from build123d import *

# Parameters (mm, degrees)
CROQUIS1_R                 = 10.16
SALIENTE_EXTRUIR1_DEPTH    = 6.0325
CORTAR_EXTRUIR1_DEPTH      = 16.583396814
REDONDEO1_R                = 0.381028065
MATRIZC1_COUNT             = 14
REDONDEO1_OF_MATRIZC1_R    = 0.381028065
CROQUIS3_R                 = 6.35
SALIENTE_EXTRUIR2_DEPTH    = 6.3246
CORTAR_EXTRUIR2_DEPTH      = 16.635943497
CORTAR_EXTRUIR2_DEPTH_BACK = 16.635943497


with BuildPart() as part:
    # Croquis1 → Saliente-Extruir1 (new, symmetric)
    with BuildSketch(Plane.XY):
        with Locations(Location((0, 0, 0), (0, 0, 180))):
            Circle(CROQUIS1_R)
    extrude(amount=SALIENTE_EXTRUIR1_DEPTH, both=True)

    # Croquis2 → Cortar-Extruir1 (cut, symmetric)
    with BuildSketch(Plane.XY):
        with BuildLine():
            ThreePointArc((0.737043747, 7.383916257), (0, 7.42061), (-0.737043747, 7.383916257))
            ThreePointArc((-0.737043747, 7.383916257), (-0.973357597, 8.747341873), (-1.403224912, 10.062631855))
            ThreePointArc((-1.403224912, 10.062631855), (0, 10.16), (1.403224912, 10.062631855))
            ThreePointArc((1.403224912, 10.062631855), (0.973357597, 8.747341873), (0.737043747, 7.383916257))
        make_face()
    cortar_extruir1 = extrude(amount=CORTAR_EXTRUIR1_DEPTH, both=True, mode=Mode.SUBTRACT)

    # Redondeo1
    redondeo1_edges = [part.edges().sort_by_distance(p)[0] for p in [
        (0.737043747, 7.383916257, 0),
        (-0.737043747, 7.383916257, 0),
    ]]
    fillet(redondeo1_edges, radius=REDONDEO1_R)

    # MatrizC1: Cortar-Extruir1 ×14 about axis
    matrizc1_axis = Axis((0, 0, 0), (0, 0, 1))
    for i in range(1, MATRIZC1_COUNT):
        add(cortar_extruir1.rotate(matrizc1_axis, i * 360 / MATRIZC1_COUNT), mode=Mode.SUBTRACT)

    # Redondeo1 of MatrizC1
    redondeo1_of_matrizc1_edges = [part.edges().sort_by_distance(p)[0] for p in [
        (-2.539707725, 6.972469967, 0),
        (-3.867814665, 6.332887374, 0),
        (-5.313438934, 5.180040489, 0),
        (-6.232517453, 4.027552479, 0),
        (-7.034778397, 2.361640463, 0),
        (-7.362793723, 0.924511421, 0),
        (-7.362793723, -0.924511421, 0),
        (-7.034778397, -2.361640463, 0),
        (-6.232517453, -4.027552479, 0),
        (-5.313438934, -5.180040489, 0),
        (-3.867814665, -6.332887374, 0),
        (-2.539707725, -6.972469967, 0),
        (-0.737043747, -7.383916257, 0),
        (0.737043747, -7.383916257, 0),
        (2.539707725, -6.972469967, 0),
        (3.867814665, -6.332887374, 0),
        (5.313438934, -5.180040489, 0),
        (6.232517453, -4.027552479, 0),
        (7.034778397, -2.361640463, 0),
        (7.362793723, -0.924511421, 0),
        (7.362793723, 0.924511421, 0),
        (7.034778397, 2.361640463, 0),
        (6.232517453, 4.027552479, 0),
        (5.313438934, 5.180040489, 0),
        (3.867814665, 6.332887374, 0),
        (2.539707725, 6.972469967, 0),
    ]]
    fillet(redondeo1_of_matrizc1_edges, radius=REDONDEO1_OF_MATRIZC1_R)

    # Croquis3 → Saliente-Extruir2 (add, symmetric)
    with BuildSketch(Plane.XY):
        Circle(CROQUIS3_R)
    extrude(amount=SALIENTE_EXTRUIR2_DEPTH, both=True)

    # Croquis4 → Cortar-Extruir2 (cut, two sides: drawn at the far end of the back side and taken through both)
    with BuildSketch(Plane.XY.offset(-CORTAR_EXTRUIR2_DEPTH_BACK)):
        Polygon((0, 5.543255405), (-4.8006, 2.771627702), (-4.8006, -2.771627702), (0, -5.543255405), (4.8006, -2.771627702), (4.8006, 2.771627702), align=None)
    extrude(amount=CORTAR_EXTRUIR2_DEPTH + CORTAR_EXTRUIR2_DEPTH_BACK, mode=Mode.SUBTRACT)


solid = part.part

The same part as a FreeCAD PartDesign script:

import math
import FreeCAD as App
import Part
import Sketcher
Q = App.Units.Quantity


def edges_at(feature, points):
    """Names of the edges that pass closest to the given points."""
    edges = feature.Shape.Edges
    near = lambda p: min(range(len(edges)), key=lambda i: edges[i].distToShape(Part.Vertex(*p))[0])
    return sorted({f"Edge{near(p) + 1}" for p in points})


def add_polygon(sketch, points):
    """Adds a closed chain of lines whose ends are joined by coincident constraints."""
    first, n = sketch.GeometryCount, len(points)
    for a, b in zip(points, points[1:] + points[:1]):
        sketch.addGeometry(Part.LineSegment(App.Vector(*a, 0), App.Vector(*b, 0)), False)
    for i in range(n):
        sketch.addConstraint(Sketcher.Constraint("Coincident", first + i, 2, first + (i + 1) % n, 1))

doc = App.newDocument("Part")
body = doc.addObject("PartDesign::Body", "Body")

# Sketch on XY plane
sketch1 = body.newObject("Sketcher::SketchObject", "Sketch")
sketch1.AttachmentSupport = (doc.getObject("XY_Plane"), [""])
sketch1.MapMode = "FlatFace"
sketch1.addGeometry(Part.Circle(App.Vector(0, 0, 0), App.Vector(0, 0, 1), 10), False)
sketch1.addConstraint([
    Sketcher.Constraint("Coincident", 0, 3, -1, 1),
    Sketcher.Constraint("Diameter", 0, Q("0.8 in")),
])
pad1 = body.newObject("PartDesign::Pad", "Pad")
pad1.Profile = sketch1
pad1.Length = Q("0.475 in")
pad1.Midplane = True

# Sketch on XY plane
sketch2 = body.newObject("Sketcher::SketchObject", "Sketch001")
sketch2.AttachmentSupport = (doc.getObject("XY_Plane"), [""])
sketch2.MapMode = "FlatFace"
sketch2.addGeometry([
    Part.ArcOfCircle(Part.Circle(App.Vector(0, 0, 0), App.Vector(0, 0, 1), 7.4), math.radians(84.3), math.radians(95.7)),
    Part.ArcOfCircle(Part.Circle(App.Vector(10.3, 6.4, 0), App.Vector(0, 0, 1), 9.6), math.radians(157.77), math.radians(174.3)),
    Part.ArcOfCircle(Part.Circle(App.Vector(0, 0, 0), App.Vector(0, 0, 1), 10.2), math.radians(82.06), math.radians(97.94)),
    Part.ArcOfCircle(Part.Circle(App.Vector(-10.3, 6.4, 0), App.Vector(0, 0, 1), 9.6), math.radians(5.7), math.radians(22.23)),
], False)
sketch2.addConstraint([
    Sketcher.Constraint("Coincident", 0, 1, 1, 2),
    Sketcher.Constraint("Coincident", 1, 1, 2, 1),
    Sketcher.Constraint("Coincident", 2, 2, 3, 2),
    Sketcher.Constraint("Coincident", 3, 1, 0, 2),
    Sketcher.Constraint("Coincident", 0, 3, -1, 1),
    Sketcher.Constraint("Coincident", 2, 3, -1, 1),
    Sketcher.Constraint("Equal", 1, 3),
    Sketcher.Constraint("Symmetric", 1, 3, 3, 3, -2),
    Sketcher.Constraint("Radius", 2, Q("0.4 in")),
    Sketcher.Constraint("Radius", 0, 7.42061),
    Sketcher.Constraint("Radius", 1, 9.600308),
    Sketcher.Constraint("DistanceX", -1, 1, 1, 3, 10.289879),
    Sketcher.Constraint("DistanceY", -1, 1, 1, 1, 10.062632),
])
pocket1 = body.newObject("PartDesign::Pocket", "Pocket")
pocket1.Profile = sketch2
pocket1.Length = 33.166794
pocket1.Midplane = True
doc.recompute()

fillet = body.newObject("PartDesign::Fillet", "Fillet")
fillet.Base = (pocket1, edges_at(pocket1, [(0.737, 7.384, 0), (-0.737, 7.384, 0)]))
fillet.Radius = 0.381028
doc.recompute()

polarpattern = body.newObject("PartDesign::PolarPattern", "PolarPattern")
polarpattern.Originals = [pocket1]
polarpattern.Axis = (doc.getObject("Z_Axis"), [""])
polarpattern.Angle = 360
polarpattern.Occurrences = 14
body.Tip = polarpattern
doc.recompute()

fillet2 = body.newObject("PartDesign::Fillet", "Fillet001")
fillet2.Base = (polarpattern, edges_at(polarpattern, [
    (-2.54, 6.972, 0),
    (-3.868, 6.333, 0),
    (-5.313, 5.18, 0),
    (-6.233, 4.028, 0),
    (-7.035, 2.362, 0),
    (-7.363, 0.925, 0),
    (-7.363, -0.925, 0),
    (-7.035, -2.362, 0),
    (-6.233, -4.028, 0),
    (-5.313, -5.18, 0),
    (-3.868, -6.333, 0),
    (-2.54, -6.972, 0),
    (-0.737, -7.384, 0),
    (0.737, -7.384, 0),
    (2.54, -6.972, 0),
    (3.868, -6.333, 0),
    (5.313, -5.18, 0),
    (6.233, -4.028, 0),
    (7.035, -2.362, 0),
    (7.363, -0.925, 0),
    (7.363, 0.925, 0),
    (7.035, 2.362, 0),
    (6.233, 4.028, 0),
    (5.313, 5.18, 0),
    (3.868, 6.333, 0),
    (2.54, 6.972, 0),
]))
fillet2.Radius = 0.381028

# Sketch on XY plane
sketch3 = body.newObject("Sketcher::SketchObject", "Sketch002")
sketch3.AttachmentSupport = (doc.getObject("XY_Plane"), [""])
sketch3.MapMode = "FlatFace"
sketch3.addGeometry(Part.Circle(App.Vector(0, 0, 0), App.Vector(0, 0, 1), 6), False)
sketch3.addConstraint([
    Sketcher.Constraint("Coincident", 0, 3, -1, 1),
    Sketcher.Constraint("Diameter", 0, Q("0.5 in")),
])
pad2 = body.newObject("PartDesign::Pad", "Pad001")
pad2.Profile = sketch3
pad2.Length = Q("0.498 in")
pad2.Midplane = True

# Sketch on XY plane
sketch4 = body.newObject("Sketcher::SketchObject", "Sketch003")
sketch4.AttachmentSupport = (doc.getObject("XY_Plane"), [""])
sketch4.MapMode = "FlatFace"
add_polygon(sketch4, [(0, 6), (-5, 3), (-5, -3), (0, -6), (5, -3), (5, 3)])  # lines 0-5
sketch4.addConstraint([
    Sketcher.Constraint("Vertical", 1),
    Sketcher.Constraint("Vertical", 4),
    Sketcher.Constraint("Symmetric", 0, 2, 3, 2, -1, 1),
    Sketcher.Constraint("Symmetric", 2, 2, 5, 2, -1, 1),
    Sketcher.Constraint("PointOnObject", 2, 2, -2),
    Sketcher.Constraint("Parallel", 2, 5),
    Sketcher.Constraint("Horizontal", 1, 2, 3, 2),
    Sketcher.Constraint("Angle", 0, Q("-150 deg")),
    Sketcher.Constraint("DistanceX", 0, 2, -1, 1, Q("0.189 in")),
    Sketcher.Constraint("DistanceY", 1, 2, 1, 1, 5.543255),
])
pocket2 = body.newObject("PartDesign::Pocket", "Pocket001")
pocket2.Profile = sketch4
pocket2.Type = "ThroughAll"
pocket2.Midplane = True

doc.recompute()
